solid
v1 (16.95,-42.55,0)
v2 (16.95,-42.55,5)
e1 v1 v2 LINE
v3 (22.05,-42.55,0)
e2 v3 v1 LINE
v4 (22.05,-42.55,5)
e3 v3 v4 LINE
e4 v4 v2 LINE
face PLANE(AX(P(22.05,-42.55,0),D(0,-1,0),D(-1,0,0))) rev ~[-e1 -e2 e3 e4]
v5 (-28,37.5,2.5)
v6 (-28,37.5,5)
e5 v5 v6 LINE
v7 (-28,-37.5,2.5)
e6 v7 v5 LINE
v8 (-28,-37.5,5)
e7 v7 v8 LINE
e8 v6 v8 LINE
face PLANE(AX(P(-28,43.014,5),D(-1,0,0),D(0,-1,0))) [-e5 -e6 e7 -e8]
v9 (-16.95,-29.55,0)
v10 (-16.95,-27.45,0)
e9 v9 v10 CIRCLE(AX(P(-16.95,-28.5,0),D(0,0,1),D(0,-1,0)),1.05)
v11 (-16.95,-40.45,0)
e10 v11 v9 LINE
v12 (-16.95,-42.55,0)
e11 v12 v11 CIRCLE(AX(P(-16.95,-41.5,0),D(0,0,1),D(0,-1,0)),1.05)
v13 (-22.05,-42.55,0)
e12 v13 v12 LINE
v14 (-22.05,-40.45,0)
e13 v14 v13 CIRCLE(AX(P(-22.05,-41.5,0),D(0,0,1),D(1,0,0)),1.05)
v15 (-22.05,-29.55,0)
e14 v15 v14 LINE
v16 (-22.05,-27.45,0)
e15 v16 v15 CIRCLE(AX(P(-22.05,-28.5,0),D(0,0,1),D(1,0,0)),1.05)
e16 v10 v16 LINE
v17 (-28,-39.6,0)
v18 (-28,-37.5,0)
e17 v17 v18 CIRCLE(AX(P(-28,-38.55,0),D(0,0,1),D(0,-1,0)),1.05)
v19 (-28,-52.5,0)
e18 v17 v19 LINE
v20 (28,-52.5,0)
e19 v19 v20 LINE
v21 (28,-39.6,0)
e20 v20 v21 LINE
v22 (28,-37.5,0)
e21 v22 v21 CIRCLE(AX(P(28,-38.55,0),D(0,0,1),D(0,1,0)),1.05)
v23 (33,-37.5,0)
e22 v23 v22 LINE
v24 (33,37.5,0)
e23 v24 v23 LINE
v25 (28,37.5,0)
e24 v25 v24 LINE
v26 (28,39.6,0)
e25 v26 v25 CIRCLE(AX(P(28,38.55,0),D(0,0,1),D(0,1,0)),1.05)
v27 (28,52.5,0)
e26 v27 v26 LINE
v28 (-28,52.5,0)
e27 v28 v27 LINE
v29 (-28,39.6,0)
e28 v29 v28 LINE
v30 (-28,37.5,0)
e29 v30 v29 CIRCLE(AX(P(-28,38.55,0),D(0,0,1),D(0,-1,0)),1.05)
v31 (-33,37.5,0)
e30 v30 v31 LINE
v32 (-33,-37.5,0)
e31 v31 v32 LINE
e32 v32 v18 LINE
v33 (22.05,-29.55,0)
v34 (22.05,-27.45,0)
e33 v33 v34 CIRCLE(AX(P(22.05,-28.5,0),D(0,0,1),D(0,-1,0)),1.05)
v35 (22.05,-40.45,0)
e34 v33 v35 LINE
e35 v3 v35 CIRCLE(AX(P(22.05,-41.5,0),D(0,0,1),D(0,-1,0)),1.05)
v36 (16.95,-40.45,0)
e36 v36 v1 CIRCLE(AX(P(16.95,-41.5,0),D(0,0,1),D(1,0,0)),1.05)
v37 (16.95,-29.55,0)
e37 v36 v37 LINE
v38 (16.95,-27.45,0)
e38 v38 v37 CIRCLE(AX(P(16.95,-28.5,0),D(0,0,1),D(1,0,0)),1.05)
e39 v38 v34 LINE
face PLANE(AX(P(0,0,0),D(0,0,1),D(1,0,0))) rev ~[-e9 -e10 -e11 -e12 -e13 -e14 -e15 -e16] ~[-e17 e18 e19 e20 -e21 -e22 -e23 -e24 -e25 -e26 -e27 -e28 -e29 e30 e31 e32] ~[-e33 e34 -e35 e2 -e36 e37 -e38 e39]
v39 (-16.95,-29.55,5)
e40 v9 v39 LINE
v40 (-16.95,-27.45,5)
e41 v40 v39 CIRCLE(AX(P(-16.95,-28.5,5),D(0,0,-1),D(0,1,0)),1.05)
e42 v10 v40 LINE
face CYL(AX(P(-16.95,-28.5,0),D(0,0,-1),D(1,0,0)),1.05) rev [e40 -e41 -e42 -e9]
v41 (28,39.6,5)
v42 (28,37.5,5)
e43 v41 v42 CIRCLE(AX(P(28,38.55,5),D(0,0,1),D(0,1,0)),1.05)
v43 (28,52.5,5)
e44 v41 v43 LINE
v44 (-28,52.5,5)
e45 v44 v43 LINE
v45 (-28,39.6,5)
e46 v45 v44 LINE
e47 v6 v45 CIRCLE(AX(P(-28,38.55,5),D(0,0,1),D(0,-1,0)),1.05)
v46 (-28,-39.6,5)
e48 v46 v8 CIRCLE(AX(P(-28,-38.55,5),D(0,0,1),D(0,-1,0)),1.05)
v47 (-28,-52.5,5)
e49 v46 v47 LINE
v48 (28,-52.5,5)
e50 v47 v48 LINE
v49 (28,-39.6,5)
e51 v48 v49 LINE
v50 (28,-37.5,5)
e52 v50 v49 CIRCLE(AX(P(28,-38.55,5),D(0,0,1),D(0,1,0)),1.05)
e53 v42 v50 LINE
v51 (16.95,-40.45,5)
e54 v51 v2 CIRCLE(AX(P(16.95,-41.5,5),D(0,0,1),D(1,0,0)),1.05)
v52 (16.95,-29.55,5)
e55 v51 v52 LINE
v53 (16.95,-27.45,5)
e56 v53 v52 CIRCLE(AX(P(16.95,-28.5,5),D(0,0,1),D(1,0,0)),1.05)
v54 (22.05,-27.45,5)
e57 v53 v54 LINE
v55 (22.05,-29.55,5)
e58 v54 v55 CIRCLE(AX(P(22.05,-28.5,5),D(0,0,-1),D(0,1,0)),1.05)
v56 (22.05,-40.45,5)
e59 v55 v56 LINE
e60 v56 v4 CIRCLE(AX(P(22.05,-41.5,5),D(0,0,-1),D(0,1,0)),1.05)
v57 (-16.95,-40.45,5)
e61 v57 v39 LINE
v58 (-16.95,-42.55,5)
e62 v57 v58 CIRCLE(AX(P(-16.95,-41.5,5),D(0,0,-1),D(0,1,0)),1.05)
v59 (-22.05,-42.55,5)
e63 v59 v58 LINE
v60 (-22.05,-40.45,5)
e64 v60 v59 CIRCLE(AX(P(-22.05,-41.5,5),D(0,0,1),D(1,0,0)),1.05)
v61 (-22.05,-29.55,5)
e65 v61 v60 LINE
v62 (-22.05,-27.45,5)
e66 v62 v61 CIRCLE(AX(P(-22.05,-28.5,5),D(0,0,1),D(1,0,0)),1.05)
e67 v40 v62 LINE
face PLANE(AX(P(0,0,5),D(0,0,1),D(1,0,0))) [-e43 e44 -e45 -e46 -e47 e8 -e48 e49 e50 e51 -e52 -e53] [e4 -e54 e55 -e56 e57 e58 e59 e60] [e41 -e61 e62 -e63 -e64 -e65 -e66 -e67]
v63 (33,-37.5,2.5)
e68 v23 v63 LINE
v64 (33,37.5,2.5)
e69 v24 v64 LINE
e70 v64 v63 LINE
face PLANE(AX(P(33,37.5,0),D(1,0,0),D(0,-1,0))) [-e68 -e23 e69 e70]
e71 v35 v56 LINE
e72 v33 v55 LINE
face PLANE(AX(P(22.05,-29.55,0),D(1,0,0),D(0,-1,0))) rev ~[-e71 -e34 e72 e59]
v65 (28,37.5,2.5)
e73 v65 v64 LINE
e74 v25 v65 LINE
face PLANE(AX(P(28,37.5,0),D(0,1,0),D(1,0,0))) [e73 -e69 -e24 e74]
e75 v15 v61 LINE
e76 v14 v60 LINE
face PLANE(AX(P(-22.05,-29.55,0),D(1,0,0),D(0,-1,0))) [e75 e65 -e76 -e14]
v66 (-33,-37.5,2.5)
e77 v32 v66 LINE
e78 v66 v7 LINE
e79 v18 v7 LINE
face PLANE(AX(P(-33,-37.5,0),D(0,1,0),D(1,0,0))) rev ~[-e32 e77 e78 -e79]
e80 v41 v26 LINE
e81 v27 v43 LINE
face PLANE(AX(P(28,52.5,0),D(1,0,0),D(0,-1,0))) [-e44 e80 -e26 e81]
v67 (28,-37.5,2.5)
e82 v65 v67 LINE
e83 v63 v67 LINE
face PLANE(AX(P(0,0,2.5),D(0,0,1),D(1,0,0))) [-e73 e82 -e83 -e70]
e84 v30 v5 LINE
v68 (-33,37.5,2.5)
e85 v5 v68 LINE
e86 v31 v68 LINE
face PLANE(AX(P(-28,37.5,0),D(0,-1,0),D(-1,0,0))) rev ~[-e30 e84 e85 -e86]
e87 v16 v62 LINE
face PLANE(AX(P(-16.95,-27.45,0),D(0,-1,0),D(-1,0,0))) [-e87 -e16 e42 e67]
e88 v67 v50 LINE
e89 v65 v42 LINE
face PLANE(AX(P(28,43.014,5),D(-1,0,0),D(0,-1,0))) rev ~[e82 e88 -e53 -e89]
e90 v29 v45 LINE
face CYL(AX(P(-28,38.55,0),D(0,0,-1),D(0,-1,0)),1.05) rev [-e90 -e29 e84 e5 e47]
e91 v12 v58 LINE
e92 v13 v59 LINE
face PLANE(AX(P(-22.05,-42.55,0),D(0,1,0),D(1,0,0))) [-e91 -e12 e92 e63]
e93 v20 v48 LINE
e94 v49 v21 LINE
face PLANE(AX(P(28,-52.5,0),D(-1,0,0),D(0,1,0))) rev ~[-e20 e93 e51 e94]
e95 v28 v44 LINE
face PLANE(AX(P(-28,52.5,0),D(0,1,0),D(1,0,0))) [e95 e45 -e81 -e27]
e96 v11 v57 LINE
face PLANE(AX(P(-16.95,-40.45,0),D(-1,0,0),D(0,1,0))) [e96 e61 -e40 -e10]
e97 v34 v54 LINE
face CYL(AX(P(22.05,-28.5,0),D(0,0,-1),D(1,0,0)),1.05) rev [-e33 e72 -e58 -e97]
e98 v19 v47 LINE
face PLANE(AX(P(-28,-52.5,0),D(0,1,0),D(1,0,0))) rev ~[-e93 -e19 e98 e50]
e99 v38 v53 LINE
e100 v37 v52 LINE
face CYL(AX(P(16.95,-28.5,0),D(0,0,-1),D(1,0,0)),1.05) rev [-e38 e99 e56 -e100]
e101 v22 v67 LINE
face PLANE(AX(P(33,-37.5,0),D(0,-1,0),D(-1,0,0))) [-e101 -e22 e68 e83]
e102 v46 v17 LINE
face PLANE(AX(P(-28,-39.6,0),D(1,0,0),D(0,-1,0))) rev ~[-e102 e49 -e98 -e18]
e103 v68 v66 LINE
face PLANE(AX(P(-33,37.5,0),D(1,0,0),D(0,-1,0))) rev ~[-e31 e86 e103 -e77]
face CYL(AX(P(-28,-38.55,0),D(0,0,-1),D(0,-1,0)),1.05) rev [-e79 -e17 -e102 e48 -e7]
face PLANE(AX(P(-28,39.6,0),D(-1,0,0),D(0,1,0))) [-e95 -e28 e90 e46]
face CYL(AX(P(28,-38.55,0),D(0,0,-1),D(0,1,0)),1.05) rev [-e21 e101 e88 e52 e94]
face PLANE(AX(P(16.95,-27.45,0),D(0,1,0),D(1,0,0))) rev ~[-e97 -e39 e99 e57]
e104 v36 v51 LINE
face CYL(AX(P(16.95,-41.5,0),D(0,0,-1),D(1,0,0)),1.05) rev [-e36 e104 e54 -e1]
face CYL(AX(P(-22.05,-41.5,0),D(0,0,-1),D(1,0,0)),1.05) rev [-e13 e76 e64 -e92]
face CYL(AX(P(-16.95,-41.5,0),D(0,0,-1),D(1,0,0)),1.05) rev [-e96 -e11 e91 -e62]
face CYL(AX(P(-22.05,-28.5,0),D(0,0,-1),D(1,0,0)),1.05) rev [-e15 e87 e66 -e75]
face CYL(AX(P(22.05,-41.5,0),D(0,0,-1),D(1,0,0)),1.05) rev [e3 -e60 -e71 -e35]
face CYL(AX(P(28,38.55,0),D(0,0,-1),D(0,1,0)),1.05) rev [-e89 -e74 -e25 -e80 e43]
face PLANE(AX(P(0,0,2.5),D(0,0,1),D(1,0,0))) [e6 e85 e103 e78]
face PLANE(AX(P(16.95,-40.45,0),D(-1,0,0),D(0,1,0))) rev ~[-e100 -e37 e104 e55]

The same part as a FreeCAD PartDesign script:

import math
import FreeCAD as App
import Part
import Sketcher

doc = App.newDocument("Part")
body = doc.addObject("PartDesign::Body", "Body")

# Sketch on XY plane
sketch1 = doc.addObject("Sketcher::SketchObject", "Sketch")
body.addObject(sketch1)
sketch1.AttachmentSupport = (doc.XY_Plane, [""])
sketch1.MapMode = "FlatFace"
sketch1.addGeometry([
    Part.LineSegment(App.Vector(-28, 52.5, 0), App.Vector(-28, 39.6, 0)),  # 0
    Part.ArcOfCircle(Part.Circle(App.Vector(-28, 38.5, 0), App.Vector(0, 0, 1), 1), math.radians(-90), math.radians(90)),  # 1
    Part.LineSegment(App.Vector(-28, 37.5, 0), App.Vector(-33, 37.5, 0)),  # 2
    Part.LineSegment(App.Vector(-33, 37.5, 0), App.Vector(-33, -37.5, 0)),  # 3
    Part.LineSegment(App.Vector(-33, -37.5, 0), App.Vector(-28, -37.5, 0)),  # 4
    Part.ArcOfCircle(Part.Circle(App.Vector(-28, -38.5, 0), App.Vector(0, 0, 1), 1.1), math.radians(-90), math.radians(90)),  # 5
    Part.LineSegment(App.Vector(-28, -39.6, 0), App.Vector(-28, -52.5, 0)),  # 6
    Part.LineSegment(App.Vector(-28, -52.5, 0), App.Vector(28, -52.5, 0)),  # 7
    Part.LineSegment(App.Vector(28, -52.5, 0), App.Vector(28, -39.6, 0)),  # 8
    Part.ArcOfCircle(Part.Circle(App.Vector(28, -38.5, 0), App.Vector(0, 0, 1), 1), math.radians(90), math.radians(270)),  # 9
    Part.LineSegment(App.Vector(28, -37.5, 0), App.Vector(33, -37.5, 0)),  # 10
    Part.LineSegment(App.Vector(33, -37.5, 0), App.Vector(33, 37.5, 0)),  # 11
    Part.LineSegment(App.Vector(33, 37.5, 0), App.Vector(28, 37.5, 0)),  # 12
    Part.ArcOfCircle(Part.Circle(App.Vector(28, 38.5, 0), App.Vector(0, 0, 1), 1.1), math.radians(90), math.radians(270)),  # 13
    Part.LineSegment(App.Vector(28, 39.6, 0), App.Vector(28, 52.5, 0)),  # 14
    Part.LineSegment(App.Vector(28, 52.5, 0), App.Vector(-28, 52.5, 0)),  # 15
    Part.Circle(App.Vector(-19.5, -48.5, 0), App.Vector(0, 0, 1), 1.6),  # 16
    Part.LineSegment(App.Vector(-22.1, -27.4, 0), App.Vector(-16.9, -27.4, 0)),  # 17
    Part.ArcOfCircle(Part.Circle(App.Vector(-16.9, -28.5, 0), App.Vector(0, 0, 1), 1.1), math.radians(-90), math.radians(90)),  # 18
    Part.LineSegment(App.Vector(-16.9, -29.6, 0), App.Vector(-16.9, -40.5, 0)),  # 19
    Part.ArcOfCircle(Part.Circle(App.Vector(-16.9, -41.5, 0), App.Vector(0, 0, 1), 1.1), math.radians(-90), math.radians(90)),  # 20
    Part.LineSegment(App.Vector(-16.9, -42.5, 0), App.Vector(-22.1, -42.5, 0)),  # 21
    Part.ArcOfCircle(Part.Circle(App.Vector(-22.1, -41.5, 0), App.Vector(0, 0, 1), 1.1), math.radians(90), math.radians(270)),  # 22
    Part.LineSegment(App.Vector(-22.1, -40.5, 0), App.Vector(-22.1, -29.6, 0)),  # 23
    Part.ArcOfCircle(Part.Circle(App.Vector(-22.1, -28.5, 0), App.Vector(0, 0, 1), 1.1), math.radians(90), math.radians(270)),  # 24
    Part.Circle(App.Vector(-19.5, -21.5, 0), App.Vector(0, 0, 1), 1.6),  # 25
    Part.Circle(App.Vector(-24.5, -13.5, 0), App.Vector(0, 0, 1), 1),  # 26
    Part.Circle(App.Vector(19.5, -48.5, 0), App.Vector(0, 0, 1), 1.6),  # 27
    Part.ArcOfCircle(Part.Circle(App.Vector(16.9, -28.5, 0), App.Vector(0, 0, 1), 1.1), math.radians(90), math.radians(270)),  # 28
    Part.LineSegment(App.Vector(16.9, -27.4, 0), App.Vector(22.1, -27.4, 0)),  # 29
    Part.ArcOfCircle(Part.Circle(App.Vector(22.1, -28.5, 0), App.Vector(0, 0, 1), 1.1), math.radians(-90), math.radians(90)),  # 30
    Part.LineSegment(App.Vector(22.1, -29.6, 0), App.Vector(22.1, -40.5, 0)),  # 31
    Part.ArcOfCircle(Part.Circle(App.Vector(22.1, -41.5, 0), App.Vector(0, 0, 1), 1.1), math.radians(-90), math.radians(90)),  # 32
    Part.LineSegment(App.Vector(22.1, -42.5, 0), App.Vector(16.9, -42.5, 0)),  # 33
    Part.ArcOfCircle(Part.Circle(App.Vector(16.9, -41.5, 0), App.Vector(0, 0, 1), 1.1), math.radians(90), math.radians(270)),  # 34
    Part.LineSegment(App.Vector(16.9, -40.5, 0), App.Vector(16.9, -29.6, 0)),  # 35
    Part.Circle(App.Vector(19.5, -21.5, 0), App.Vector(0, 0, 1), 1.6),  # 36
    Part.Circle(App.Vector(24.5, -13.5, 0), App.Vector(0, 0, 1), 1),  # 37
    Part.Circle(App.Vector(-24.5, 44.5, 0), App.Vector(0, 0, 1), 1),  # 38
    Part.Circle(App.Vector(24.5, 44.5, 0), App.Vector(0, 0, 1), 1),  # 39
], False)
sketch1.addConstraint([
    Sketcher.Constraint("Coincident", 0, 2, 1, 2),
    Sketcher.Constraint("Tangent", 1, 1, 2, 1),
    Sketcher.Constraint("Coincident", 2, 2, 3, 1),
    Sketcher.Constraint("Coincident", 3, 2, 4, 1),
    Sketcher.Constraint("Tangent", 4, 2, 5, 2),
    Sketcher.Constraint("Coincident", 5, 1, 6, 1),
    Sketcher.Constraint("Coincident", 6, 2, 7, 1),
    Sketcher.Constraint("Coincident", 7, 2, 8, 1),
    Sketcher.Constraint("Coincident", 8, 2, 9, 2),
    Sketcher.Constraint("Tangent", 9, 1, 10, 1),
    Sketcher.Constraint("Coincident", 10, 2, 11, 1),
    Sketcher.Constraint("Coincident", 11, 2, 12, 1),
    Sketcher.Constraint("Tangent", 12, 2, 13, 2),
    Sketcher.Constraint("Coincident", 13, 1, 14, 1),
    Sketcher.Constraint("Coincident", 14, 2, 15, 1),
    Sketcher.Constraint("Coincident", 15, 2, 0, 1),
    Sketcher.Constraint("Tangent", 17, 2, 18, 2),
    Sketcher.Constraint("Coincident", 18, 1, 19, 1),
    Sketcher.Constraint("Coincident", 19, 2, 20, 2),
    Sketcher.Constraint("Tangent", 20, 1, 21, 1),
    Sketcher.Constraint("Tangent", 21, 2, 22, 2),
    Sketcher.Constraint("Coincident", 22, 1, 23, 1),
    Sketcher.Constraint("Coincident", 23, 2, 24, 2),
    Sketcher.Constraint("Tangent", 24, 1, 17, 1),
    Sketcher.Constraint("Tangent", 28, 1, 29, 1),
    Sketcher.Constraint("Tangent", 29, 2, 30, 2),
    Sketcher.Constraint("Coincident", 30, 1, 31, 1),
    Sketcher.Constraint("Coincident", 31, 2, 32, 2),
    Sketcher.Constraint("Tangent", 32, 1, 33, 1),
    Sketcher.Constraint("Tangent", 33, 2, 34, 2),
    Sketcher.Constraint("Coincident", 34, 1, 35, 1),
    Sketcher.Constraint("Coincident", 35, 2, 28, 2),
    Sketcher.Constraint("Vertical", 0),
    Sketcher.Constraint("Horizontal", 2),
    Sketcher.Constraint("Vertical", 3),
    Sketcher.Constraint("Horizontal", 4),
    Sketcher.Constraint("Vertical", 6),
    Sketcher.Constraint("Horizontal", 7),
    Sketcher.Constraint("Vertical", 8),
    Sketcher.Constraint("Horizontal", 10),
    Sketcher.Constraint("Vertical", 11),
    Sketcher.Constraint("Horizontal", 12),
    Sketcher.Constraint("Vertical", 14),
    Sketcher.Constraint("Horizontal", 15),
    Sketcher.Constraint("Horizontal", 17),
    Sketcher.Constraint("Vertical", 19),
    Sketcher.Constraint("Horizontal", 21),
    Sketcher.Constraint("Vertical", 23),
    Sketcher.Constraint("Horizontal", 29),
    Sketcher.Constraint("Vertical", 31),
    Sketcher.Constraint("Horizontal", 33),
    Sketcher.Constraint("Vertical", 35),
    Sketcher.Constraint("Equal", 1, 5),
    Sketcher.Constraint("Equal", 5, 9),
    Sketcher.Constraint("Equal", 9, 13),
    Sketcher.Constraint("Equal", 13, 18),
    Sketcher.Constraint("Equal", 18, 20),
    Sketcher.Constraint("Equal", 20, 22),
    Sketcher.Constraint("Equal", 22, 24),
    Sketcher.Constraint("Equal", 16, 25),
    Sketcher.Constraint("Equal", 25, 27),
    Sketcher.Constraint("Equal", 24, 28),
    Sketcher.Constraint("Equal", 28, 30),
    Sketcher.Constraint("Equal", 30, 32),
    Sketcher.Constraint("Equal", 32, 34),
    Sketcher.Constraint("Equal", 27, 36),
    Sketcher.Constraint("Equal", 26, 37),
    Sketcher.Constraint("Equal", 37, 38),
    Sketcher.Constraint("Equal", 38, 39),
    Sketcher.Constraint("Symmetric", 1, 3, 9, 3, -1, 1),
    Sketcher.Constraint("Symmetric", 5, 3, 13, 3, -1, 1),
    Sketcher.Constraint("Symmetric", 6, 2, 14, 2, -1, 1),
    Sketcher.Constraint("Symmetric", 5, 3, 9, 3, -2),
    Sketcher.Constraint("Symmetric", 16, 3, 27, 3, -2),
    Sketcher.Constraint("Symmetric", 18, 3, 28, 3, -2),
    Sketcher.Constraint("Symmetric", 22, 3, 32, 3, -2),
    Sketcher.Constraint("Symmetric", 25, 3, 36, 3, -2),
    Sketcher.Constraint("Symmetric", 26, 3, 37, 3, -2),
    Sketcher.Constraint("Symmetric", 38, 3, 39, 3, -2),
    Sketcher.Constraint("Vertical", 18, 3, 20, 3),
    Sketcher.Constraint("Vertical", 22, 3, 24, 3),
    Sketcher.Constraint("Vertical", 16, 3, 25, 3),
    Sketcher.Constraint("Vertical", 30, 3, 32, 3),
    Sketcher.Constraint("Vertical", 28, 3, 34, 3),
    Sketcher.Constraint("Vertical", 26, 3, 38, 3),
    Sketcher.Constraint("Vertical", 5, 3, 0, 2),
    Sketcher.Constraint("Vertical", 4, 2, 5, 1),
    Sketcher.Constraint("Vertical", 13, 3, 7, 2),
    Sketcher.Constraint("Vertical", 17, 2, 18, 1),
    Sketcher.Constraint("Vertical", 21, 2, 22, 1),
    Sketcher.Constraint("Vertical", 29, 2, 30, 1),
    Sketcher.Constraint("Vertical", 33, 2, 34, 1),
    Sketcher.Constraint("Equal", 4, 10),
    Sketcher.Constraint("Diameter", 16, 3.1),
    Sketcher.Constraint("Diameter", 26, 2.08),
    Sketcher.Constraint("DistanceX", 2, 2, 2, 1, 5.0),
    Sketcher.Constraint("DistanceX", 7, 1, 7, 2, 56.0),
    Sketcher.Constraint("Radius", 1, 1.05),
    Sketcher.Constraint("DistanceX", 26, 3, 25, 3, 5.0),
    Sketcher.Constraint("DistanceY", 25, 3, 26, 3, 8.0),
    Sketcher.Constraint("DistanceY", 24, 3, 26, 3, 15.0),
    Sketcher.Constraint("DistanceY", 26, 3, 38, 3, 58.0),
    Sketcher.Constraint("DistanceX", 38, 3, 39, 3, 49.0),
    Sketcher.Constraint("DistanceY", 6, 2, 4, 2, 15.0),
    Sketcher.Constraint("DistanceY", 39, 3, 14, 2, 8.0),
    Sketcher.Constraint("DistanceY", 3, 2, 3, 1, 75.0),
    Sketcher.Constraint("DistanceX", 17, 1, 17, 2, 5.1),
    Sketcher.Constraint("DistanceY", 19, 2, 19, 1, 10.9),
    Sketcher.Constraint("DistanceY", 16, 3, 18, 3, 20.0),
    Sketcher.Constraint("DistanceX", 18, 3, 30, 3, 39.0),
])
pad1 = doc.addObject("PartDesign::Pad", "Pad")
body.addObject(pad1)
pad1.Profile = sketch1
pad1.Length = 5

# Sketch on XY plane
sketch2 = doc.addObject("Sketcher::SketchObject", "Sketch001")
body.addObject(sketch2)
sketch2.AttachmentSupport = (doc.XY_Plane, [""])
sketch2.MapMode = "FlatFace"
sketch2.AttachmentOffset = App.Placement(App.Vector(0, 0, 5), App.Rotation())
sketch2.addGeometry([
    Part.LineSegment(App.Vector(-28, -43, 0), App.Vector(-28, 43, 0)),  # 0
    Part.LineSegment(App.Vector(-28, 43, 0), App.Vector(-68, 43, 0)),  # 1
    Part.LineSegment(App.Vector(-68, 43, 0), App.Vector(-68, -43, 0)),  # 2
    Part.LineSegment(App.Vector(-68, -43, 0), App.Vector(-28, -43, 0)),  # 3
    Part.LineSegment(App.Vector(68, -43, 0), App.Vector(68, 43, 0)),  # 4
    Part.LineSegment(App.Vector(68, 43, 0), App.Vector(28, 43, 0)),  # 5
    Part.LineSegment(App.Vector(28, 43, 0), App.Vector(28, -43, 0)),  # 6
    Part.LineSegment(App.Vector(28, -43, 0), App.Vector(68, -43, 0)),  # 7
], False)
sketch2.addConstraint([
    Sketcher.Constraint("Coincident", 0, 2, 1, 1),
    Sketcher.Constraint("Coincident", 1, 2, 2, 1),
    Sketcher.Constraint("Coincident", 2, 2, 3, 1),
    Sketcher.Constraint("Coincident", 3, 2, 0, 1),
    Sketcher.Constraint("Coincident", 4, 2, 5, 1),
    Sketcher.Constraint("Coincident", 5, 2, 6, 1),
    Sketcher.Constraint("Coincident", 6, 2, 7, 1),
    Sketcher.Constraint("Coincident", 7, 2, 4, 1),
    Sketcher.Constraint("Vertical", 0),
    Sketcher.Constraint("Horizontal", 1),
    Sketcher.Constraint("Vertical", 2),
    Sketcher.Constraint("Horizontal", 3),
    Sketcher.Constraint("Vertical", 4),
    Sketcher.Constraint("Horizontal", 5),
    Sketcher.Constraint("Vertical", 6),
    Sketcher.Constraint("Horizontal", 7),
    Sketcher.Constraint("Symmetric", 2, 2, 4, 2, -1, 1),
    Sketcher.Constraint("Symmetric", 0, 2, 6, 2, -1, 1),
    Sketcher.Constraint("Horizontal", 1, 2, 4, 2),
    Sketcher.Constraint("DistanceX", 0, 2, -1, 1, 28.0),
    Sketcher.Constraint("DistanceY", 0, 1, 0, 2, 86.028),
    Sketcher.Constraint("DistanceX", 1, 2, 1, 1, 39.7785),
])
pocket1 = doc.addObject("PartDesign::Pocket", "Pocket")
body.addObject(pocket1)
pocket1.Profile = sketch2
pocket1.Length = 2.5

# Sketch on XY plane
sketch3 = doc.addObject("Sketcher::SketchObject", "Sketch002")
body.addObject(sketch3)
sketch3.AttachmentSupport = (doc.XY_Plane, [""])
sketch3.MapMode = "FlatFace"
sketch3.addGeometry([
    Part.Circle(App.Vector(24.5, 44.5, 0), App.Vector(0, 0, 1), 1),  # 0
    Part.Circle(App.Vector(-24.5, 44.5, 0), App.Vector(0, 0, 1), 1),  # 1
    Part.Circle(App.Vector(-24.5, -13.5, 0), App.Vector(0, 0, 1), 1),  # 2
    Part.Circle(App.Vector(24.5, -13.5, 0), App.Vector(0, 0, 1), 1),  # 3
    Part.Circle(App.Vector(19.5, -21.5, 0), App.Vector(0, 0, 1), 1.6),  # 4
    Part.Circle(App.Vector(-19.5, -21.5, 0), App.Vector(0, 0, 1), 1.6),  # 5
    Part.Circle(App.Vector(19.5, -48.5, 0), App.Vector(0, 0, 1), 1.6),  # 6
    Part.Circle(App.Vector(-19.5, -48.5, 0), App.Vector(0, 0, 1), 1.6),  # 7
], False)
sketch3.addConstraint([
    Sketcher.Constraint("Equal", 0, 1),
    Sketcher.Constraint("Equal", 1, 2),
    Sketcher.Constraint("Equal", 2, 3),
    Sketcher.Constraint("Equal", 4, 5),
    Sketcher.Constraint("Equal", 5, 6),
    Sketcher.Constraint("Equal", 6, 7),
    Sketcher.Constraint("Symmetric", 0, 3, 1, 3, -2),
    Sketcher.Constraint("Symmetric", 2, 3, 3, 3, -2),
    Sketcher.Constraint("Symmetric", 4, 3, 5, 3, -2),
    Sketcher.Constraint("Symmetric", 6, 3, 7, 3, -2),
    Sketcher.Constraint("Vertical", 1, 3, 2, 3),
    Sketcher.Constraint("Vertical", 4, 3, 6, 3),
    Sketcher.Constraint("Diameter", 4, 3.1),
    Sketcher.Constraint("Diameter", 0, 2.08),
    Sketcher.Constraint("DistanceX", 1, 3, 0, 3, 49.0),
    Sketcher.Constraint("DistanceY", 2, 3, 1, 3, 58.0),
    Sketcher.Constraint("DistanceX", 4, 3, 3, 3, 5.0),
    Sketcher.Constraint("DistanceY", 4, 3, 3, 3, 8.0),
    Sketcher.Constraint("DistanceY", 6, 3, 4, 3, 27.0),
    Sketcher.Constraint("DistanceY", -1, 1, 0, 3, 44.5),
])
pad2 = doc.addObject("PartDesign::Pad", "Pad001")
body.addObject(pad2)
pad2.Profile = sketch3
pad2.Length = 5

doc.recompute()
